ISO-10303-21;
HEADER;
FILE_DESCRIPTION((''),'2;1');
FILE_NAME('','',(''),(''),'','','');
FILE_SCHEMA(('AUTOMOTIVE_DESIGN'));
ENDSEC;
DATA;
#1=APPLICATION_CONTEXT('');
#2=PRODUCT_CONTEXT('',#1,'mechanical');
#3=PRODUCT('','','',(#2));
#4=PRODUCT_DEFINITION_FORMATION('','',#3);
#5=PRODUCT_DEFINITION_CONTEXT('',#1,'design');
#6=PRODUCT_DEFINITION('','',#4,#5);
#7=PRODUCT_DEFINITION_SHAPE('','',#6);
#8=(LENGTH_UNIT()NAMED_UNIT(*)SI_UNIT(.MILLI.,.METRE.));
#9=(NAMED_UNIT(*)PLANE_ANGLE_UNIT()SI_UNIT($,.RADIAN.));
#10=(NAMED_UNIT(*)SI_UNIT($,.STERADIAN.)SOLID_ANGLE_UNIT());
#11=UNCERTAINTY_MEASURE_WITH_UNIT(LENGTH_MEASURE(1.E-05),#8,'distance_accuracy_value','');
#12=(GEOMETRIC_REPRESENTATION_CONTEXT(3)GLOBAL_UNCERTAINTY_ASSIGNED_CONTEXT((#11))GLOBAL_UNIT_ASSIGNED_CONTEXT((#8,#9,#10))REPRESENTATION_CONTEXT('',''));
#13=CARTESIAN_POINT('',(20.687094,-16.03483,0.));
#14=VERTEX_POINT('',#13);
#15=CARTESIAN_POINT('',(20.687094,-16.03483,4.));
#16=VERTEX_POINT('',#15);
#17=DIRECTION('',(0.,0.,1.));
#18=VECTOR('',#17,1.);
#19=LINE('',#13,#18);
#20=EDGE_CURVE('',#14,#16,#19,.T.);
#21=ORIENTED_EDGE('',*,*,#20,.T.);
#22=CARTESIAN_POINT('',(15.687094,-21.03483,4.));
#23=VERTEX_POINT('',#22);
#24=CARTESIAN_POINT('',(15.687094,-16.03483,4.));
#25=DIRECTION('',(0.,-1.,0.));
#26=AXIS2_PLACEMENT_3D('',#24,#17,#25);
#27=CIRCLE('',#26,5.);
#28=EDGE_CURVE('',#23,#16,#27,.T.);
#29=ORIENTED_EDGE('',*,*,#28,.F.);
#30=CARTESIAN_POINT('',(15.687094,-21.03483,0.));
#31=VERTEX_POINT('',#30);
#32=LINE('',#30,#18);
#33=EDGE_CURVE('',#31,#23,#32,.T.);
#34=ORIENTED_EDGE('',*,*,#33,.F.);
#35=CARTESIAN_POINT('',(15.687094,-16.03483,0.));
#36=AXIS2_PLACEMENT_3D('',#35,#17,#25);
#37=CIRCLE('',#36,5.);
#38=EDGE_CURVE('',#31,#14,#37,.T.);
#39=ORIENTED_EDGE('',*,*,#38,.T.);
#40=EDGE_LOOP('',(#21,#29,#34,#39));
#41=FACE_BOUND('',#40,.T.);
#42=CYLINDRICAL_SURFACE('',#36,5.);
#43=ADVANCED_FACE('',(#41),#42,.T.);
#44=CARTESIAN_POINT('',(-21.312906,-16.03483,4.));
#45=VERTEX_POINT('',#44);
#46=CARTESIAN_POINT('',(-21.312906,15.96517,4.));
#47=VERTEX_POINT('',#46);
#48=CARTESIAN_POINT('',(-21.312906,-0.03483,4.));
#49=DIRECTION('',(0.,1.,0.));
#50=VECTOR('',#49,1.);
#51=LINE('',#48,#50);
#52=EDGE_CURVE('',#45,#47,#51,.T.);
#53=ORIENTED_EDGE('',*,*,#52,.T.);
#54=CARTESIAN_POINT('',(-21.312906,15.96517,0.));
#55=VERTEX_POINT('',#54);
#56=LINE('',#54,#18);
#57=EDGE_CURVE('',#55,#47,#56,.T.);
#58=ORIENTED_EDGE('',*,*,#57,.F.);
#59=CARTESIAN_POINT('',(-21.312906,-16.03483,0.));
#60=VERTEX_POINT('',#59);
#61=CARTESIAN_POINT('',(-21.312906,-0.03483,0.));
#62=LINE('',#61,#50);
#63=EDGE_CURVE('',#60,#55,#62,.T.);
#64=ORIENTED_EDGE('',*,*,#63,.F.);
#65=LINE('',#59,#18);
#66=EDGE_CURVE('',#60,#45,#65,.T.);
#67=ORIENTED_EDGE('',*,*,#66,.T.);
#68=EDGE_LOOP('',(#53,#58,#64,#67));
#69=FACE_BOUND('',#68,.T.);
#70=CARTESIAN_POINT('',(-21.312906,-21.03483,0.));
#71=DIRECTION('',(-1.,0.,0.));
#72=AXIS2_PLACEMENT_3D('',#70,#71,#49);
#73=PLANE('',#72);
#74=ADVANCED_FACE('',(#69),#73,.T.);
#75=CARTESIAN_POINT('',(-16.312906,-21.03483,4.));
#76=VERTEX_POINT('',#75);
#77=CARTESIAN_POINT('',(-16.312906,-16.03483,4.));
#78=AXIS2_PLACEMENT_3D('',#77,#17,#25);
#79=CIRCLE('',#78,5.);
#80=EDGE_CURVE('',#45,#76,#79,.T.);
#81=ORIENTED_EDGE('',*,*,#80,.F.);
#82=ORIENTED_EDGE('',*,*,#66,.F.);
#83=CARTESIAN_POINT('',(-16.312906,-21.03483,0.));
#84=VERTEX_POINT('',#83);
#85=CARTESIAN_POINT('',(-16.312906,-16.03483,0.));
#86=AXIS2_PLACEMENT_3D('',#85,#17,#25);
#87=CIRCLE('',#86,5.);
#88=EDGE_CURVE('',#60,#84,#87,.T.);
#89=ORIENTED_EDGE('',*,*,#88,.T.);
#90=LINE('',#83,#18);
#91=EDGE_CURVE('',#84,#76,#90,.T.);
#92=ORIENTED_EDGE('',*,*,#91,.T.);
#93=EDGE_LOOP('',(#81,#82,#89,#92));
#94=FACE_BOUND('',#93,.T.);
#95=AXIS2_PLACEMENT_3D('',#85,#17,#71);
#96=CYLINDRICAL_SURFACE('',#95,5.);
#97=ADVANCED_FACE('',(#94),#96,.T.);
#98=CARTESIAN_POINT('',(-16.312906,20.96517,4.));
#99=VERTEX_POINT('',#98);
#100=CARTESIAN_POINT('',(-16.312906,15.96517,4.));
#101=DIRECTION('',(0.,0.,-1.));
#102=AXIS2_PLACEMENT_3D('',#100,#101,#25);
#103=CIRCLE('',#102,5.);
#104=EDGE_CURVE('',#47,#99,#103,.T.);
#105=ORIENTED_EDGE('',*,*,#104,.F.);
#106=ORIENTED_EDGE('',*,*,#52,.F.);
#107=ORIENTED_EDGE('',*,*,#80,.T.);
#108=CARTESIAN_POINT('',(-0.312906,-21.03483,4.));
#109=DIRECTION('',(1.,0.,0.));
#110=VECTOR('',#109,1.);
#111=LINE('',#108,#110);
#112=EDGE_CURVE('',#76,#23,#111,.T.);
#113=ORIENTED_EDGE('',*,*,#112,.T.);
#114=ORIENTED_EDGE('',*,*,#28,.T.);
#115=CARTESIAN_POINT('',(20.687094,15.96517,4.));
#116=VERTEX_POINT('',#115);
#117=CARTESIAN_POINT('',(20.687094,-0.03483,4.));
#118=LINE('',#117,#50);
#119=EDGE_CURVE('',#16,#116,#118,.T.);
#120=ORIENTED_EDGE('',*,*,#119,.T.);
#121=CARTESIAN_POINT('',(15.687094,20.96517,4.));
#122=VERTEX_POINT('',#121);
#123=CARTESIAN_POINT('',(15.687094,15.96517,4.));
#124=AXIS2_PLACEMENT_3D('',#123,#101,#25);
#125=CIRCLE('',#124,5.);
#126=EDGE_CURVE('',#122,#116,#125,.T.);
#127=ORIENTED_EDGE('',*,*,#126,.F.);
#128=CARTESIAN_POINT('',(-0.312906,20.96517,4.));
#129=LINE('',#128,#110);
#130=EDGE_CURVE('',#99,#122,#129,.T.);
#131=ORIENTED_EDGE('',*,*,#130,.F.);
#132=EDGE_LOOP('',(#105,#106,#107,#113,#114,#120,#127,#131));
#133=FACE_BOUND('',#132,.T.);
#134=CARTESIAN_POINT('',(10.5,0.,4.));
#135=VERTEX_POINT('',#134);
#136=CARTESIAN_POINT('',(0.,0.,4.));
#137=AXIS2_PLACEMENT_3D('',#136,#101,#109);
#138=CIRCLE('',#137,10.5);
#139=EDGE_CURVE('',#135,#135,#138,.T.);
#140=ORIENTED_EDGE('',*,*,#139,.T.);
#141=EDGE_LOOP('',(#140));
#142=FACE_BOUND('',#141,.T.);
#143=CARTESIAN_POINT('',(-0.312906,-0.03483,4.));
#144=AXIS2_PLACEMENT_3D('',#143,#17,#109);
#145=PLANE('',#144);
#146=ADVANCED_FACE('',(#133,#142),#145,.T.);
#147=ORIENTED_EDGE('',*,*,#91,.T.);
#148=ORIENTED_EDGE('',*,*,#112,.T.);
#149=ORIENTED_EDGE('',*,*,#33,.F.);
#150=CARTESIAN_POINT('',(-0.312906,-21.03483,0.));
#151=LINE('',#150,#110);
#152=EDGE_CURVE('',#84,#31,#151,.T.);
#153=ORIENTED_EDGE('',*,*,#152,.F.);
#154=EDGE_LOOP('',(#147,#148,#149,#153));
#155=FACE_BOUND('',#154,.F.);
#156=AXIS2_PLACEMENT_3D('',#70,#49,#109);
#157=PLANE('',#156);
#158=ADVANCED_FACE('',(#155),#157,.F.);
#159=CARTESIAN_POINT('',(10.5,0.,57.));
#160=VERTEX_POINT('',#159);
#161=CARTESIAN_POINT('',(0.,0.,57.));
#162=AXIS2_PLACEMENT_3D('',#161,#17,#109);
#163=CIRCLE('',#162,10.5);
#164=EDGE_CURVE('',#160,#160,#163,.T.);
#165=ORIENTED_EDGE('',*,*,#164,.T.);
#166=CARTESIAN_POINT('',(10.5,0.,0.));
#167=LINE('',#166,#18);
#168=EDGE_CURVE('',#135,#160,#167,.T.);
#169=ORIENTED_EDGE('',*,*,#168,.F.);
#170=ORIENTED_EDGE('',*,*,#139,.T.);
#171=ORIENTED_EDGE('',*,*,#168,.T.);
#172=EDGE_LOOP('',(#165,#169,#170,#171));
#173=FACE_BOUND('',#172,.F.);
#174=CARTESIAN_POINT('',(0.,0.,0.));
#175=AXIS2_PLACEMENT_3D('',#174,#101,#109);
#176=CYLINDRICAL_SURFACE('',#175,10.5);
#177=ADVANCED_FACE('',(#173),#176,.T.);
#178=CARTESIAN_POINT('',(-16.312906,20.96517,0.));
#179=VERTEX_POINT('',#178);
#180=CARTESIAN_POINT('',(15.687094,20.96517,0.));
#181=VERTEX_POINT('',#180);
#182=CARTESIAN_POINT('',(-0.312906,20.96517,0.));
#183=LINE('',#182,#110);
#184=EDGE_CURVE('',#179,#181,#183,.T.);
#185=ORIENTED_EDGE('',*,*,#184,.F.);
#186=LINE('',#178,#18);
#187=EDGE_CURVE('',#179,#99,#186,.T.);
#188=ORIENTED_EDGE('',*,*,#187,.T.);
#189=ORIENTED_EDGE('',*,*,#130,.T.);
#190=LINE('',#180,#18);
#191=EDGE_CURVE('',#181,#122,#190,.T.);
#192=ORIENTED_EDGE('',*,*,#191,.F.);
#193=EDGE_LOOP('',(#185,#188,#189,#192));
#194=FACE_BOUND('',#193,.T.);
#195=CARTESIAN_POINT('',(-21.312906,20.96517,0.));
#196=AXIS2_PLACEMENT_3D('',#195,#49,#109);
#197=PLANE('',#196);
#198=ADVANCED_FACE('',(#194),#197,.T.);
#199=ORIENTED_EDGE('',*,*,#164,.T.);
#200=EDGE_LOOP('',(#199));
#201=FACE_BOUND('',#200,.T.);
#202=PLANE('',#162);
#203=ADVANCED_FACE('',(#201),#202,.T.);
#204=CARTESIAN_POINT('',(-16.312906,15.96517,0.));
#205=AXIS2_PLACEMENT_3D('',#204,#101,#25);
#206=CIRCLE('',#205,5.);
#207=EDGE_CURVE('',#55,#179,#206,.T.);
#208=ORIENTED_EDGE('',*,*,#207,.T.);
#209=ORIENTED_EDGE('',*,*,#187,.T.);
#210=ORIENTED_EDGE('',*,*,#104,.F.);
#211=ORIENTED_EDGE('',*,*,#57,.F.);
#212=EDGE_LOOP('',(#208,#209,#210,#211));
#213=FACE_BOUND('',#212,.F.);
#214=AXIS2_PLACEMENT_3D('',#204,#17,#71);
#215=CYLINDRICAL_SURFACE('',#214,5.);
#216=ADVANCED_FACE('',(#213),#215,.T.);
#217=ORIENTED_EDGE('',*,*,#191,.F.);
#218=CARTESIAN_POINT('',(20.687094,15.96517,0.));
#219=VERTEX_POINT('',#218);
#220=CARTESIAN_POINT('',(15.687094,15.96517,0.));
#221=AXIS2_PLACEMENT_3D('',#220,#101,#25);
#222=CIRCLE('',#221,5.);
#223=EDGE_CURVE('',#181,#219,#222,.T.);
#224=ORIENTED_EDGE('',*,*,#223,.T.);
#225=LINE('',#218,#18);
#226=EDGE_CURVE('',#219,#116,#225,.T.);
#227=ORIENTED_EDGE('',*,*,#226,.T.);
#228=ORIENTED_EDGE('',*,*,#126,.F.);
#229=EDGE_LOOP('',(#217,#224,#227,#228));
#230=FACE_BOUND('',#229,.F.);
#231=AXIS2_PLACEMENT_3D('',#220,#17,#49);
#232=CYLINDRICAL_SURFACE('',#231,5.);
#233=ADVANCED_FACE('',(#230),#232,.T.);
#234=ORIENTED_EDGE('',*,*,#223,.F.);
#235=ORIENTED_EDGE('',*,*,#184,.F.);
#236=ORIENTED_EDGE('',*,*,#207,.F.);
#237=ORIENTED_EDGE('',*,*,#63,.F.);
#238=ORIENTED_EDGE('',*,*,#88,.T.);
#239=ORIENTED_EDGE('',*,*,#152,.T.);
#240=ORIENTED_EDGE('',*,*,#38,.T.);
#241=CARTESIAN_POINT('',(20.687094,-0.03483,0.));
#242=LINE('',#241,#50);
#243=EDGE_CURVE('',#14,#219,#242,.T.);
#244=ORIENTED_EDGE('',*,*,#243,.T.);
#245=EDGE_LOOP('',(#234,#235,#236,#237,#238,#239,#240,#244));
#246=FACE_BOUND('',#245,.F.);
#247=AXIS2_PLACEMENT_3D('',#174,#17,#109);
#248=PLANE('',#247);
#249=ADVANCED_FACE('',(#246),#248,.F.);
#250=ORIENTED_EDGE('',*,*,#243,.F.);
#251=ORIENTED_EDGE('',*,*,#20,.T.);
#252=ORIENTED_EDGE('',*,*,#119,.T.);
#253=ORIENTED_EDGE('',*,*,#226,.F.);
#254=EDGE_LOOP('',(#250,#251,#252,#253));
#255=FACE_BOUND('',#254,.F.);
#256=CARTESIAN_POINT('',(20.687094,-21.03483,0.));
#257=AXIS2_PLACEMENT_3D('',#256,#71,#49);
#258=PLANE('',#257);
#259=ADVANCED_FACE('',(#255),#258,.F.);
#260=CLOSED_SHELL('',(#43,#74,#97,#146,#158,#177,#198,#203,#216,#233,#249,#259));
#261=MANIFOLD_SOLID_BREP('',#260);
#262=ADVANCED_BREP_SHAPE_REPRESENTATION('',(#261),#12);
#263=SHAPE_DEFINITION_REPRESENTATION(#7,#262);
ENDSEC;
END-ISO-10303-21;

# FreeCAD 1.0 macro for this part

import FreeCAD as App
import Part
import Sketcher
from FreeCAD import Vector


def edges_at(feature, points):
    """Names of the edges that pass closest to the given points."""
    edges = feature.Shape.Edges
    near = lambda p: min(range(len(edges)), key=lambda i: edges[i].distToShape(Part.Vertex(*p))[0])
    return sorted({f"Edge{near(p) + 1}" for p in points})

doc = App.newDocument("Part")
body = doc.addObject("PartDesign::Body", "Body")

# Sketch on XY plane
sketch1 = doc.addObject("Sketcher::SketchObject", "Sketch")
body.addObject(sketch1)
sketch1.AttachmentSupport = (doc.XY_Plane, [""])
sketch1.MapMode = "FlatFace"
sketch1.addGeometry([
    Part.LineSegment(Vector(-21, 21, 0), Vector(-21, -21, 0)),
    Part.LineSegment(Vector(-21, -21, 0), Vector(21, -21, 0)),
    Part.LineSegment(Vector(21, -21, 0), Vector(21, 21, 0)),
    Part.LineSegment(Vector(21, 21, 0), Vector(-21, 21, 0)),
], False)
sketch1.addConstraint([
    Sketcher.Constraint("Coincident", 0, 2, 1, 1),
    Sketcher.Constraint("Coincident", 1, 2, 2, 1),
    Sketcher.Constraint("Coincident", 2, 2, 3, 1),
    Sketcher.Constraint("Coincident", 3, 2, 0, 1),
    Sketcher.Constraint("Vertical", 0),
    Sketcher.Constraint("Horizontal", 1),
    Sketcher.Constraint("Vertical", 2),
    Sketcher.Constraint("Horizontal", 3),
    Sketcher.Constraint("Equal", 3, 0),
    Sketcher.Constraint("DistanceX", 1, 1, 1, 2, 42.0),
    Sketcher.Constraint("DistanceY", 0, 2, -1, 1, 21.03483),
    Sketcher.Constraint("DistanceX", 0, 2, -1, 1, 21.312906),
])
pad1 = doc.addObject("PartDesign::Pad", "Pad")
body.addObject(pad1)
pad1.Profile = sketch1
pad1.Length = 4

# Sketch on XY plane
sketch2 = doc.addObject("Sketcher::SketchObject", "Sketch001")
body.addObject(sketch2)
sketch2.AttachmentSupport = (doc.XY_Plane, [""])
sketch2.MapMode = "FlatFace"
sketch2.addGeometry(Part.Circle(Vector(0, 0, 0), Vector(0, 0, 1), 10), False)
sketch2.addConstraint([
    Sketcher.Constraint("Coincident", 0, 3, -1, 1),
    Sketcher.Constraint("Diameter", 0, 21.0),
])
pad2 = doc.addObject("PartDesign::Pad", "Pad001")
body.addObject(pad2)
pad2.Profile = sketch2
pad2.Length = 57
doc.recompute()

fillet = doc.addObject("PartDesign::Fillet", "Fillet")
body.addObject(fillet)
fillet.Base = (pad2, edges_at(pad2, [
    (-21.313, -21.035, 2),
    (-21.313, 20.965, 2),
    (20.687, -21.035, 2),
    (20.687, 20.965, 2),
]))
fillet.Radius = 5

doc.recompute()
